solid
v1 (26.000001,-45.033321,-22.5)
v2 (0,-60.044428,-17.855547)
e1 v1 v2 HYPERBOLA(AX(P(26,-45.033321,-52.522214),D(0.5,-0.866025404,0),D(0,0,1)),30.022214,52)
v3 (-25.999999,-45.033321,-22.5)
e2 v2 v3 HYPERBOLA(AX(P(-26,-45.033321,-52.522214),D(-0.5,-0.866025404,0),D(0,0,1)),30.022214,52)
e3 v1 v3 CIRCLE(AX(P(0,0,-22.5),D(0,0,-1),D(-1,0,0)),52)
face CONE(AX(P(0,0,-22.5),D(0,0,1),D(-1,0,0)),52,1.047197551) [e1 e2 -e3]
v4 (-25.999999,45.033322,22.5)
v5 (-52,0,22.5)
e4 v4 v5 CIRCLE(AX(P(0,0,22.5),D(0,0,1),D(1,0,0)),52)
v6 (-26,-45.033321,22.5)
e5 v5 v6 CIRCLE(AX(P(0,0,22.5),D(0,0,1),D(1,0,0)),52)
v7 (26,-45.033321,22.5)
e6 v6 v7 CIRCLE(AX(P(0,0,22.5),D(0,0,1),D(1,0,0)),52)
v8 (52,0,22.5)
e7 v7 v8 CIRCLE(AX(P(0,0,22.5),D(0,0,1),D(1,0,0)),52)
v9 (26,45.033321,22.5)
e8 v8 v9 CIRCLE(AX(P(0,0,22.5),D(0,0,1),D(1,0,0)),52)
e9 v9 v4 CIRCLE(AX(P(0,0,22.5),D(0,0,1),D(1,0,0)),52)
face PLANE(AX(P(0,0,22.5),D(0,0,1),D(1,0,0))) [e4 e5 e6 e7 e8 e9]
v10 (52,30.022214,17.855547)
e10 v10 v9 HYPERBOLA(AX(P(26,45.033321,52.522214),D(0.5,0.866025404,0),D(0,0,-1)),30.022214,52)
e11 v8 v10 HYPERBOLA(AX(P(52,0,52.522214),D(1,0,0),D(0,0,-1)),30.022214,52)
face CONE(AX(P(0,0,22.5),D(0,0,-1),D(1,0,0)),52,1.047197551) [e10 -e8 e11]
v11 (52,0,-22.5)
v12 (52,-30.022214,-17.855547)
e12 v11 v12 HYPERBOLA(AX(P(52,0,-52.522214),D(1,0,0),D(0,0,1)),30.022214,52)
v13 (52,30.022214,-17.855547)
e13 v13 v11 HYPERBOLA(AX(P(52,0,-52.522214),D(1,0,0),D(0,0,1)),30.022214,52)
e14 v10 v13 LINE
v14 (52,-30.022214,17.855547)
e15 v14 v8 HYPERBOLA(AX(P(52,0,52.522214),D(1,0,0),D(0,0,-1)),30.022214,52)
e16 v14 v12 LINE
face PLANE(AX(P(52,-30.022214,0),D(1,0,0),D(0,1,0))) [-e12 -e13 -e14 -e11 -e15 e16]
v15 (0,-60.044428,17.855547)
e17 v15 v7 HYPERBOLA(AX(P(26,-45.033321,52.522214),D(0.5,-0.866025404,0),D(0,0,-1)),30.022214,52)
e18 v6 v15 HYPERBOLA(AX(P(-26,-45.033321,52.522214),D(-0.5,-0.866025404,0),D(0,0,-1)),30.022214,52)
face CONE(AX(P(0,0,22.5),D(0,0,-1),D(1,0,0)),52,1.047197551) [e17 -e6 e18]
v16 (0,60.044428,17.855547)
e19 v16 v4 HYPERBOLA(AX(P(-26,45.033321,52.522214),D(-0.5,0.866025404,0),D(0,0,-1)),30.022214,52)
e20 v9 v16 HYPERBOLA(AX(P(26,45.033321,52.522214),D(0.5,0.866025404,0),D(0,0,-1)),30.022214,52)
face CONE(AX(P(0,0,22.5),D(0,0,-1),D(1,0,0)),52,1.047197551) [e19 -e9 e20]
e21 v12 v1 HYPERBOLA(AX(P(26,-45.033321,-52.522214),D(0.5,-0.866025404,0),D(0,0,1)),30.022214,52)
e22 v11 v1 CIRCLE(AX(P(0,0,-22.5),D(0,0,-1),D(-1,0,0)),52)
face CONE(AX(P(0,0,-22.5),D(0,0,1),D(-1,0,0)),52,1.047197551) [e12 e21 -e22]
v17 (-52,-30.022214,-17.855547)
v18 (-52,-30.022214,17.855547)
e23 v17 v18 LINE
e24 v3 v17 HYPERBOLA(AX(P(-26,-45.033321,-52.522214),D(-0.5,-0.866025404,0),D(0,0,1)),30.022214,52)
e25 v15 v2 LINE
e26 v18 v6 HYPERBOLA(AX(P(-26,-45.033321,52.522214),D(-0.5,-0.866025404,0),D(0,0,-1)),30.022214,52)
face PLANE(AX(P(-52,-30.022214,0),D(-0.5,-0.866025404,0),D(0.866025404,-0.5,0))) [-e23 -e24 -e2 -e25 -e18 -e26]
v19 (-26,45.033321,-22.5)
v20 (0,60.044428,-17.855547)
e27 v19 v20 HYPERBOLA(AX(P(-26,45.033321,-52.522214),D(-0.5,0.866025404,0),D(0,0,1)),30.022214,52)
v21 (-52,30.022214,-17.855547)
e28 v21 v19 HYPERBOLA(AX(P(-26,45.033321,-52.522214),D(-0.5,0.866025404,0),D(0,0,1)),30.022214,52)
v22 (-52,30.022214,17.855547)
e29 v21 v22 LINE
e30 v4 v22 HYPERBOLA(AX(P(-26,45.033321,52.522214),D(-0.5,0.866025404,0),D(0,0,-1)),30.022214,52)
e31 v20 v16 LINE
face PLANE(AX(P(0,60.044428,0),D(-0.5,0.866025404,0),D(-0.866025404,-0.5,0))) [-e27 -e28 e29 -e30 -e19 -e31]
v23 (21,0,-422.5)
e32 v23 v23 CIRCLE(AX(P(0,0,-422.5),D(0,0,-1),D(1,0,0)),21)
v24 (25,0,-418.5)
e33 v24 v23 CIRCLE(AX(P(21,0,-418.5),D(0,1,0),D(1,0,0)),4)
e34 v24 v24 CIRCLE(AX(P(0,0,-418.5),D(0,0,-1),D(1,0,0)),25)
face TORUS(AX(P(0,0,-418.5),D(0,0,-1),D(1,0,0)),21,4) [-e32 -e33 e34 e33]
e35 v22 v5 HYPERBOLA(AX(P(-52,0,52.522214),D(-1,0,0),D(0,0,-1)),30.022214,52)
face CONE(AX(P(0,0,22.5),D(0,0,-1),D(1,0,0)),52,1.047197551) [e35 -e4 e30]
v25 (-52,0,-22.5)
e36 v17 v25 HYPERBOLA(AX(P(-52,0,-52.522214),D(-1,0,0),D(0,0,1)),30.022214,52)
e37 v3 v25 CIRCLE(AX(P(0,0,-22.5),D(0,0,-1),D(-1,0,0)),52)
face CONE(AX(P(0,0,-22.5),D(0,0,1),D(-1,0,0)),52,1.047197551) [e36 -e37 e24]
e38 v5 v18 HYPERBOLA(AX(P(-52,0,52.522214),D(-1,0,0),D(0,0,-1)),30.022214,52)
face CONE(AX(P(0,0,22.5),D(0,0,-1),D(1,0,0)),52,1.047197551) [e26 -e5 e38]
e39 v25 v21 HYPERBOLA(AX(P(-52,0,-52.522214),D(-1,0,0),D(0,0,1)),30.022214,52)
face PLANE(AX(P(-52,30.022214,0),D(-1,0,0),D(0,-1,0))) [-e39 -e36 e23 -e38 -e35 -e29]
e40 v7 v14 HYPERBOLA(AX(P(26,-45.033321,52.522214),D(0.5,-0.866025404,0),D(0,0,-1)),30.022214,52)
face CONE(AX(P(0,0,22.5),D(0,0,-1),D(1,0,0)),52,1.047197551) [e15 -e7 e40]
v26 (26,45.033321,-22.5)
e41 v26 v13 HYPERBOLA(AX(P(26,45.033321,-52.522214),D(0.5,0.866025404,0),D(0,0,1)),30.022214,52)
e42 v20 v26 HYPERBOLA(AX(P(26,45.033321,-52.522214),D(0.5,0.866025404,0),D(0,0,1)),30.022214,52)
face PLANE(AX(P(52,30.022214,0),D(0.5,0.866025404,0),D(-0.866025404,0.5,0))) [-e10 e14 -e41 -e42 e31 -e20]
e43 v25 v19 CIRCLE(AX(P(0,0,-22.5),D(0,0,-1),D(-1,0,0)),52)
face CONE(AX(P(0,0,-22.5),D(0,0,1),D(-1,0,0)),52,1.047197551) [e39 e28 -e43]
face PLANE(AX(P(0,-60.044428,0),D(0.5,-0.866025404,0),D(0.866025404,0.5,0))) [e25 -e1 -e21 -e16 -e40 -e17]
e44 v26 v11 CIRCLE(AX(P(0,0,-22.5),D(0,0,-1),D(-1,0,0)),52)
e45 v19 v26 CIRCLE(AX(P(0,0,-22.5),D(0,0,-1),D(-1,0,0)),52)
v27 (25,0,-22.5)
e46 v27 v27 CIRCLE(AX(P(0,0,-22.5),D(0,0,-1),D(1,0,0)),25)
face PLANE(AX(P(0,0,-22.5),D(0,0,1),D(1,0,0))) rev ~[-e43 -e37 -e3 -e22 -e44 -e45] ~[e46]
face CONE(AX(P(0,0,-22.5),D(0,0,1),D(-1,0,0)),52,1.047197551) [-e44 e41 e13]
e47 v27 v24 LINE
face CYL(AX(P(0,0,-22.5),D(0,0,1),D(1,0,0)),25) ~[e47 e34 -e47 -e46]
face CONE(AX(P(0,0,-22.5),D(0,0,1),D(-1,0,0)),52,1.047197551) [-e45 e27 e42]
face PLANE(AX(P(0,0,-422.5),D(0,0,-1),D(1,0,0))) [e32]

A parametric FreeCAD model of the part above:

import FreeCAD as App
import Part
import Sketcher
from FreeCAD import Vector
Q = App.Units.Quantity


def edges_at(feature, points):
    """Names of the edges that pass closest to the given points."""
    edges = feature.Shape.Edges
    near = lambda p: min(range(len(edges)), key=lambda i: edges[i].distToShape(Part.Vertex(*p))[0])
    return sorted({f"Edge{near(p) + 1}" for p in points})


def faces_at(feature, points):
    """Names of the faces that lie closest to the given points."""
    faces = feature.Shape.Faces
    near = lambda p: min(range(len(faces)), key=lambda i: faces[i].distToShape(Part.Vertex(*p))[0])
    return sorted({f"Face{near(p) + 1}" for p in points})

doc = App.newDocument("Part")
body = doc.addObject("PartDesign::Body", "Body")

# Sketch on XY plane
sketch1 = body.newObject("Sketcher::SketchObject", "Sketch")
sketch1.AttachmentSupport = (doc.getObject("XY_Plane"), [""])
sketch1.MapMode = "FlatFace"
sketch1.addGeometry(Part.LineSegment(Vector(52, 30.022214, 0), Vector(0, 60.044428, 0)), False)
sketch1.addGeometry(Part.LineSegment(Vector(0, 60.044428, 0), Vector(-52, 30.022214, 0)), False)
sketch1.addGeometry(Part.LineSegment(Vector(-52, 30.022214, 0), Vector(-52, -30.022214, 0)), False)
sketch1.addGeometry(Part.LineSegment(Vector(-52, -30.022214, 0), Vector(0, -60.044428, 0)), False)
sketch1.addGeometry(Part.LineSegment(Vector(0, -60.044428, 0), Vector(52, -30.022214, 0)), False)
sketch1.addGeometry(Part.LineSegment(Vector(52, -30.022214, 0), Vector(52, 30.022214, 0)), False)
sketch1.addConstraint(Sketcher.Constraint("Coincident", 0, 2, 1, 1))
sketch1.addConstraint(Sketcher.Constraint("Coincident", 1, 2, 2, 1))
sketch1.addConstraint(Sketcher.Constraint("Coincident", 2, 2, 3, 1))
sketch1.addConstraint(Sketcher.Constraint("Coincident", 3, 2, 4, 1))
sketch1.addConstraint(Sketcher.Constraint("Coincident", 4, 2, 5, 1))
sketch1.addConstraint(Sketcher.Constraint("Coincident", 5, 2, 0, 1))
sketch1.addConstraint(Sketcher.Constraint("Vertical", 2))
sketch1.addConstraint(Sketcher.Constraint("Vertical", 5))
sketch1.addConstraint(Sketcher.Constraint("Symmetric", 0, 2, 3, 2, -1, 1))
sketch1.addConstraint(Sketcher.Constraint("Symmetric", 1, 2, 4, 2, -1, 1))
sketch1.addConstraint(Sketcher.Constraint("PointOnObject", 0, 2, -2))
sketch1.addConstraint(Sketcher.Constraint("Parallel", 0, 3))
sketch1.addConstraint(Sketcher.Constraint("Horizontal", 2, 2, 4, 2))
sketch1.addConstraint(Sketcher.Constraint("Angle", 0, Q("150 deg")))
sketch1.addConstraint(Sketcher.Constraint("DistanceX", 1, 2, -1, 1, Q("52 mm")))
sketch1.addConstraint(Sketcher.Constraint("DistanceY", 2, 2, 2, 1, Q("60.044428 mm")))
pad1 = body.newObject("PartDesign::Pad", "Pad")
pad1.Profile = sketch1
pad1.Length = 45
pad1.Midplane = True
body2 = doc.addObject("PartDesign::Body", "Body001")

# Sketch on XY plane
sketch2 = body2.newObject("Sketcher::SketchObject", "Sketch001")
sketch2.AttachmentSupport = (doc.getObject("XY_Plane001"), [""])
sketch2.MapMode = "FlatFace"
sketch2.AttachmentOffset = App.Placement(Vector(0, 0, 22.5), App.Rotation())
sketch2.addGeometry(Part.LineSegment(Vector(-147.454, 155.498, 0), Vector(-147.454, -155.498, 0)), False)
sketch2.addGeometry(Part.LineSegment(Vector(-147.454, -155.498, 0), Vector(147.454, -155.498, 0)), False)
sketch2.addGeometry(Part.LineSegment(Vector(147.454, -155.498, 0), Vector(147.454, 155.498, 0)), False)
sketch2.addGeometry(Part.LineSegment(Vector(147.454, 155.498, 0), Vector(-147.454, 155.498, 0)), False)
sketch2.addGeometry(Part.Circle(Vector(0, 0, 0), Vector(0, 0, 1), 52), False)
sketch2.addConstraint(Sketcher.Constraint("Coincident", 0, 2, 1, 1))
sketch2.addConstraint(Sketcher.Constraint("Coincident", 1, 2, 2, 1))
sketch2.addConstraint(Sketcher.Constraint("Coincident", 2, 2, 3, 1))
sketch2.addConstraint(Sketcher.Constraint("Coincident", 3, 2, 0, 1))
sketch2.addConstraint(Sketcher.Constraint("Vertical", 0))
sketch2.addConstraint(Sketcher.Constraint("Horizontal", 1))
sketch2.addConstraint(Sketcher.Constraint("Vertical", 2))
sketch2.addConstraint(Sketcher.Constraint("Horizontal", 3))
sketch2.addConstraint(Sketcher.Constraint("Coincident", 4, 3, -1, 1))
sketch2.addConstraint(Sketcher.Constraint("Symmetric", 0, 2, 2, 2, -1, 1))
sketch2.addConstraint(Sketcher.Constraint("Diameter", 4, Q("104 mm")))
sketch2.addConstraint(Sketcher.Constraint("DistanceX", 1, 1, 1, 2, Q("294.908 mm")))
sketch2.addConstraint(Sketcher.Constraint("DistanceY", 0, 2, 0, 1, Q("310.996 mm")))
pad2 = body2.newObject("PartDesign::Pad", "Pad001")
pad2.Profile = sketch2
pad2.Length = 45
pad2.Reversed = True
doc.recompute()

datumplane = body2.newObject("PartDesign::Plane", "DatumPlane")
datumplane.AttachmentSupport = (doc.getObject("XY_Plane001"), [""])
datumplane.MapMode = "FlatFace"
datumplane.AttachmentOffset = App.Placement(Vector(0, 0, 22.5), App.Rotation())
draft = body2.newObject("PartDesign::Draft", "Draft")
draft.Base = (pad2, faces_at(pad2, [
    (0, -155.498, 0),
    (147.454, 0, 0),
    (0, 155.498, 0),
    (-147.454, 0, 0),
    (-52, 0, 0),
]))
draft.NeutralPlane = (datumplane, [""])
draft.Angle = 60
draft.Reversed = True
doc.recompute()

boolean = body.newObject("PartDesign::Boolean", "Boolean")
boolean.Type = "Cut"
boolean.addObjects([body2])
body3 = doc.addObject("PartDesign::Body", "Body002")

# Sketch on XY plane
sketch3 = body3.newObject("Sketcher::SketchObject", "Sketch002")
sketch3.AttachmentSupport = (doc.getObject("XY_Plane002"), [""])
sketch3.MapMode = "FlatFace"
sketch3.AttachmentOffset = App.Placement(Vector(0, 0, -22.5), App.Rotation())
sketch3.addGeometry(Part.LineSegment(Vector(147.454, 155.498, 0), Vector(147.454, -155.498, 0)), False)
sketch3.addGeometry(Part.LineSegment(Vector(147.454, -155.498, 0), Vector(-147.454, -155.498, 0)), False)
sketch3.addGeometry(Part.LineSegment(Vector(-147.454, -155.498, 0), Vector(-147.454, 155.498, 0)), False)
sketch3.addGeometry(Part.LineSegment(Vector(-147.454, 155.498, 0), Vector(147.454, 155.498, 0)), False)
sketch3.addGeometry(Part.Circle(Vector(0, 0, 0), Vector(0, 0, 1), 52), False)
sketch3.addConstraint(Sketcher.Constraint("Coincident", 0, 2, 1, 1))
sketch3.addConstraint(Sketcher.Constraint("Coincident", 1, 2, 2, 1))
sketch3.addConstraint(Sketcher.Constraint("Coincident", 2, 2, 3, 1))
sketch3.addConstraint(Sketcher.Constraint("Coincident", 3, 2, 0, 1))
sketch3.addConstraint(Sketcher.Constraint("Vertical", 0))
sketch3.addConstraint(Sketcher.Constraint("Horizontal", 1))
sketch3.addConstraint(Sketcher.Constraint("Vertical", 2))
sketch3.addConstraint(Sketcher.Constraint("Horizontal", 3))
sketch3.addConstraint(Sketcher.Constraint("Coincident", 4, 3, -1, 1))
sketch3.addConstraint(Sketcher.Constraint("Symmetric", 0, 2, 2, 2, -1, 1))
sketch3.addConstraint(Sketcher.Constraint("Diameter", 4, Q("104 mm")))
sketch3.addConstraint(Sketcher.Constraint("DistanceX", 1, 2, 1, 1, Q("294.908 mm")))
sketch3.addConstraint(Sketcher.Constraint("DistanceY", 0, 2, 0, 1, Q("310.996 mm")))
pad3 = body3.newObject("PartDesign::Pad", "Pad002")
pad3.Profile = sketch3
pad3.Length = 45
doc.recompute()

datumplane2 = body3.newObject("PartDesign::Plane", "DatumPlane001")
datumplane2.AttachmentSupport = (doc.getObject("XY_Plane002"), [""])
datumplane2.MapMode = "FlatFace"
datumplane2.AttachmentOffset = App.Placement(Vector(0, 0, -22.5), App.Rotation())
draft2 = body3.newObject("PartDesign::Draft", "Draft001")
draft2.Base = (pad3, faces_at(pad3, [
    (0, -155.498, 0),
    (-147.454, 0, 0),
    (0, 155.498, 0),
    (147.454, 0, 0),
    (52, 0, 0),
]))
draft2.NeutralPlane = (datumplane2, [""])
draft2.Angle = 60
draft2.Reversed = False
doc.recompute()

boolean2 = body.newObject("PartDesign::Boolean", "Boolean001")
boolean2.Type = "Cut"
boolean2.addObjects([body3])

# Sketch on XY plane
sketch4 = body.newObject("Sketcher::SketchObject", "Sketch003")
sketch4.AttachmentSupport = (doc.getObject("XY_Plane"), [""])
sketch4.MapMode = "FlatFace"
sketch4.AttachmentOffset = App.Placement(Vector(0, 0, -22.5), App.Rotation())
sketch4.addGeometry(Part.Circle(Vector(0, 0, 0), Vector(0, 0, 1), 25), False)
sketch4.addConstraint(Sketcher.Constraint("Coincident", 0, 3, -1, 1))
sketch4.addConstraint(Sketcher.Constraint("Diameter", 0, Q("50 mm")))
pad4 = body.newObject("PartDesign::Pad", "Pad003")
pad4.Profile = sketch4
pad4.Length = 400
pad4.Reversed = True
doc.recompute()

fillet = body.newObject("PartDesign::Fillet", "Fillet")
fillet.Base = (pad4, edges_at(pad4, [(-25, 0, -422.5)]))
fillet.Radius = 4

doc.recompute()
